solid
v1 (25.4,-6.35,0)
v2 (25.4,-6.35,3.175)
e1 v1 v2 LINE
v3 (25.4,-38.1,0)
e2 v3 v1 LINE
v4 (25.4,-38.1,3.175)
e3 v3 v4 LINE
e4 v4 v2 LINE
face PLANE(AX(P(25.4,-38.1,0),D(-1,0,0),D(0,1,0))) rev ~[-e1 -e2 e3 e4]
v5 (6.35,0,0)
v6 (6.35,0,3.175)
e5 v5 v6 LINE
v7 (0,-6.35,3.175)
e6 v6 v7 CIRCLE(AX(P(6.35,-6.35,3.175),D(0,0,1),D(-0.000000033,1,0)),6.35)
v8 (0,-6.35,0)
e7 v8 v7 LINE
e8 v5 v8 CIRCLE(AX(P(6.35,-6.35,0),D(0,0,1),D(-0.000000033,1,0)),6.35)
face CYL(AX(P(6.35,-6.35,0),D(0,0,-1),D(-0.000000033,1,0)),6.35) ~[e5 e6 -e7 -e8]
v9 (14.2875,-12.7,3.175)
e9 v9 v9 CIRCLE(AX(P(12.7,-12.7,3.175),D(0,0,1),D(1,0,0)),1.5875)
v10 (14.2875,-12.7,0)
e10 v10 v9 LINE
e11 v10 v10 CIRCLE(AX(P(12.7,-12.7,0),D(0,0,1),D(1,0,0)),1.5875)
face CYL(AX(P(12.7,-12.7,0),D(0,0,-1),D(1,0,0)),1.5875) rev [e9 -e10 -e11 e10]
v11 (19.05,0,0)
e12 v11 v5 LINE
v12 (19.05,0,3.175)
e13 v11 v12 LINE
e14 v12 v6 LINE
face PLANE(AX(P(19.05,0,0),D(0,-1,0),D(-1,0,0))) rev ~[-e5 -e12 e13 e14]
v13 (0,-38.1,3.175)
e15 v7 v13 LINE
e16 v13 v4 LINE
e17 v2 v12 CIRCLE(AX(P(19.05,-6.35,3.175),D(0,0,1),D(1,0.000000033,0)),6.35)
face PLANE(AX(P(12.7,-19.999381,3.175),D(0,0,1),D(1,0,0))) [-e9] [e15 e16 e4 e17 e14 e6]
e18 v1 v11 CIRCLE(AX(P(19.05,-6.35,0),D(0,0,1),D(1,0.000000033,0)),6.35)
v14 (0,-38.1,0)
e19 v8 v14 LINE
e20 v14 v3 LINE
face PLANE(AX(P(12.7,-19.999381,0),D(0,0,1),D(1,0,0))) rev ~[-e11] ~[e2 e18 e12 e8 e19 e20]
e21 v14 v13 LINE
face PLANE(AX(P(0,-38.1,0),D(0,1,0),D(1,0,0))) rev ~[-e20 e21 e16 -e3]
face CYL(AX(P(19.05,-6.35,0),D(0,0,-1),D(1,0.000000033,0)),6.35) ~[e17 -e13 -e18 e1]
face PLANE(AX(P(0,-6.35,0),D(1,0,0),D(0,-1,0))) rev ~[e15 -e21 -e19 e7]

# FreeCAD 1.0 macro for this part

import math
import FreeCAD as App
import Part
import Sketcher

V = App.Vector
Q = App.Units.Quantity

doc = App.newDocument("Part")
body = doc.addObject("PartDesign::Body", "Body")

# Sketch on XY plane
sketch1 = doc.addObject("Sketcher::SketchObject", "Sketch")
body.addObject(sketch1)
sketch1.AttachmentSupport = (doc.XY_Plane, [""])
sketch1.MapMode = "FlatFace"
sketch1.addGeometry([
    Part.LineSegment(V(19.1, 0, 0), V(6.3, 0, 0)),  # 0
    Part.ArcOfCircle(Part.Circle(V(6.4, -6.4, 0), V(0, 0, 1), 6.4), math.radians(90), math.radians(180)),  # 1
    Part.LineSegment(V(0, -6.3, 0), V(0, -38.1, 0)),  # 2
    Part.LineSegment(V(0, -38.1, 0), V(25.4, -38.1, 0)),  # 3
    Part.LineSegment(V(25.4, -38.1, 0), V(25.4, -6.3, 0)),  # 4
    Part.ArcOfCircle(Part.Circle(V(19, -6.4, 0), V(0, 0, 1), 6.4), math.radians(0), math.radians(90)),  # 5
    Part.Circle(V(12.7, -12.7, 0), V(0, 0, 1), 1.6),  # 6
], False)
sketch1.addConstraint([
    Sketcher.Constraint("Tangent", 0, 2, 1, 1),
    Sketcher.Constraint("Tangent", 1, 2, 2, 1),
    Sketcher.Constraint("Coincident", 2, 2, 3, 1),
    Sketcher.Constraint("Coincident", 3, 2, 4, 1),
    Sketcher.Constraint("Tangent", 4, 2, 5, 1),
    Sketcher.Constraint("Tangent", 5, 2, 0, 1),
    Sketcher.Constraint("Horizontal", 0),
    Sketcher.Constraint("Vertical", 2),
    Sketcher.Constraint("Horizontal", 3),
    Sketcher.Constraint("Vertical", 4),
    Sketcher.Constraint("Equal", 1, 5),
    Sketcher.Constraint("PointOnObject", 0, 2, -1),
    Sketcher.Constraint("PointOnObject", 1, 2, -2),
    Sketcher.Constraint("DistanceX", 3, 1, 3, 2, Q("1 in")),
    Sketcher.Constraint("Radius", 1, Q("0.25 in")),
    Sketcher.Constraint("Diameter", 6, Q("0.125 in")),
    Sketcher.Constraint("DistanceY", 2, 2, 6, 3, Q("1 in")),
    Sketcher.Constraint("DistanceY", 2, 2, 2, 1, Q("1.25 in")),
    Sketcher.Constraint("DistanceX", -1, 1, 6, 3, Q("0.5 in")),
])
pad1 = doc.addObject("PartDesign::Pad", "Pad")
body.addObject(pad1)
pad1.Profile = sketch1
pad1.Length = Q("0.125 in")

doc.recompute()
